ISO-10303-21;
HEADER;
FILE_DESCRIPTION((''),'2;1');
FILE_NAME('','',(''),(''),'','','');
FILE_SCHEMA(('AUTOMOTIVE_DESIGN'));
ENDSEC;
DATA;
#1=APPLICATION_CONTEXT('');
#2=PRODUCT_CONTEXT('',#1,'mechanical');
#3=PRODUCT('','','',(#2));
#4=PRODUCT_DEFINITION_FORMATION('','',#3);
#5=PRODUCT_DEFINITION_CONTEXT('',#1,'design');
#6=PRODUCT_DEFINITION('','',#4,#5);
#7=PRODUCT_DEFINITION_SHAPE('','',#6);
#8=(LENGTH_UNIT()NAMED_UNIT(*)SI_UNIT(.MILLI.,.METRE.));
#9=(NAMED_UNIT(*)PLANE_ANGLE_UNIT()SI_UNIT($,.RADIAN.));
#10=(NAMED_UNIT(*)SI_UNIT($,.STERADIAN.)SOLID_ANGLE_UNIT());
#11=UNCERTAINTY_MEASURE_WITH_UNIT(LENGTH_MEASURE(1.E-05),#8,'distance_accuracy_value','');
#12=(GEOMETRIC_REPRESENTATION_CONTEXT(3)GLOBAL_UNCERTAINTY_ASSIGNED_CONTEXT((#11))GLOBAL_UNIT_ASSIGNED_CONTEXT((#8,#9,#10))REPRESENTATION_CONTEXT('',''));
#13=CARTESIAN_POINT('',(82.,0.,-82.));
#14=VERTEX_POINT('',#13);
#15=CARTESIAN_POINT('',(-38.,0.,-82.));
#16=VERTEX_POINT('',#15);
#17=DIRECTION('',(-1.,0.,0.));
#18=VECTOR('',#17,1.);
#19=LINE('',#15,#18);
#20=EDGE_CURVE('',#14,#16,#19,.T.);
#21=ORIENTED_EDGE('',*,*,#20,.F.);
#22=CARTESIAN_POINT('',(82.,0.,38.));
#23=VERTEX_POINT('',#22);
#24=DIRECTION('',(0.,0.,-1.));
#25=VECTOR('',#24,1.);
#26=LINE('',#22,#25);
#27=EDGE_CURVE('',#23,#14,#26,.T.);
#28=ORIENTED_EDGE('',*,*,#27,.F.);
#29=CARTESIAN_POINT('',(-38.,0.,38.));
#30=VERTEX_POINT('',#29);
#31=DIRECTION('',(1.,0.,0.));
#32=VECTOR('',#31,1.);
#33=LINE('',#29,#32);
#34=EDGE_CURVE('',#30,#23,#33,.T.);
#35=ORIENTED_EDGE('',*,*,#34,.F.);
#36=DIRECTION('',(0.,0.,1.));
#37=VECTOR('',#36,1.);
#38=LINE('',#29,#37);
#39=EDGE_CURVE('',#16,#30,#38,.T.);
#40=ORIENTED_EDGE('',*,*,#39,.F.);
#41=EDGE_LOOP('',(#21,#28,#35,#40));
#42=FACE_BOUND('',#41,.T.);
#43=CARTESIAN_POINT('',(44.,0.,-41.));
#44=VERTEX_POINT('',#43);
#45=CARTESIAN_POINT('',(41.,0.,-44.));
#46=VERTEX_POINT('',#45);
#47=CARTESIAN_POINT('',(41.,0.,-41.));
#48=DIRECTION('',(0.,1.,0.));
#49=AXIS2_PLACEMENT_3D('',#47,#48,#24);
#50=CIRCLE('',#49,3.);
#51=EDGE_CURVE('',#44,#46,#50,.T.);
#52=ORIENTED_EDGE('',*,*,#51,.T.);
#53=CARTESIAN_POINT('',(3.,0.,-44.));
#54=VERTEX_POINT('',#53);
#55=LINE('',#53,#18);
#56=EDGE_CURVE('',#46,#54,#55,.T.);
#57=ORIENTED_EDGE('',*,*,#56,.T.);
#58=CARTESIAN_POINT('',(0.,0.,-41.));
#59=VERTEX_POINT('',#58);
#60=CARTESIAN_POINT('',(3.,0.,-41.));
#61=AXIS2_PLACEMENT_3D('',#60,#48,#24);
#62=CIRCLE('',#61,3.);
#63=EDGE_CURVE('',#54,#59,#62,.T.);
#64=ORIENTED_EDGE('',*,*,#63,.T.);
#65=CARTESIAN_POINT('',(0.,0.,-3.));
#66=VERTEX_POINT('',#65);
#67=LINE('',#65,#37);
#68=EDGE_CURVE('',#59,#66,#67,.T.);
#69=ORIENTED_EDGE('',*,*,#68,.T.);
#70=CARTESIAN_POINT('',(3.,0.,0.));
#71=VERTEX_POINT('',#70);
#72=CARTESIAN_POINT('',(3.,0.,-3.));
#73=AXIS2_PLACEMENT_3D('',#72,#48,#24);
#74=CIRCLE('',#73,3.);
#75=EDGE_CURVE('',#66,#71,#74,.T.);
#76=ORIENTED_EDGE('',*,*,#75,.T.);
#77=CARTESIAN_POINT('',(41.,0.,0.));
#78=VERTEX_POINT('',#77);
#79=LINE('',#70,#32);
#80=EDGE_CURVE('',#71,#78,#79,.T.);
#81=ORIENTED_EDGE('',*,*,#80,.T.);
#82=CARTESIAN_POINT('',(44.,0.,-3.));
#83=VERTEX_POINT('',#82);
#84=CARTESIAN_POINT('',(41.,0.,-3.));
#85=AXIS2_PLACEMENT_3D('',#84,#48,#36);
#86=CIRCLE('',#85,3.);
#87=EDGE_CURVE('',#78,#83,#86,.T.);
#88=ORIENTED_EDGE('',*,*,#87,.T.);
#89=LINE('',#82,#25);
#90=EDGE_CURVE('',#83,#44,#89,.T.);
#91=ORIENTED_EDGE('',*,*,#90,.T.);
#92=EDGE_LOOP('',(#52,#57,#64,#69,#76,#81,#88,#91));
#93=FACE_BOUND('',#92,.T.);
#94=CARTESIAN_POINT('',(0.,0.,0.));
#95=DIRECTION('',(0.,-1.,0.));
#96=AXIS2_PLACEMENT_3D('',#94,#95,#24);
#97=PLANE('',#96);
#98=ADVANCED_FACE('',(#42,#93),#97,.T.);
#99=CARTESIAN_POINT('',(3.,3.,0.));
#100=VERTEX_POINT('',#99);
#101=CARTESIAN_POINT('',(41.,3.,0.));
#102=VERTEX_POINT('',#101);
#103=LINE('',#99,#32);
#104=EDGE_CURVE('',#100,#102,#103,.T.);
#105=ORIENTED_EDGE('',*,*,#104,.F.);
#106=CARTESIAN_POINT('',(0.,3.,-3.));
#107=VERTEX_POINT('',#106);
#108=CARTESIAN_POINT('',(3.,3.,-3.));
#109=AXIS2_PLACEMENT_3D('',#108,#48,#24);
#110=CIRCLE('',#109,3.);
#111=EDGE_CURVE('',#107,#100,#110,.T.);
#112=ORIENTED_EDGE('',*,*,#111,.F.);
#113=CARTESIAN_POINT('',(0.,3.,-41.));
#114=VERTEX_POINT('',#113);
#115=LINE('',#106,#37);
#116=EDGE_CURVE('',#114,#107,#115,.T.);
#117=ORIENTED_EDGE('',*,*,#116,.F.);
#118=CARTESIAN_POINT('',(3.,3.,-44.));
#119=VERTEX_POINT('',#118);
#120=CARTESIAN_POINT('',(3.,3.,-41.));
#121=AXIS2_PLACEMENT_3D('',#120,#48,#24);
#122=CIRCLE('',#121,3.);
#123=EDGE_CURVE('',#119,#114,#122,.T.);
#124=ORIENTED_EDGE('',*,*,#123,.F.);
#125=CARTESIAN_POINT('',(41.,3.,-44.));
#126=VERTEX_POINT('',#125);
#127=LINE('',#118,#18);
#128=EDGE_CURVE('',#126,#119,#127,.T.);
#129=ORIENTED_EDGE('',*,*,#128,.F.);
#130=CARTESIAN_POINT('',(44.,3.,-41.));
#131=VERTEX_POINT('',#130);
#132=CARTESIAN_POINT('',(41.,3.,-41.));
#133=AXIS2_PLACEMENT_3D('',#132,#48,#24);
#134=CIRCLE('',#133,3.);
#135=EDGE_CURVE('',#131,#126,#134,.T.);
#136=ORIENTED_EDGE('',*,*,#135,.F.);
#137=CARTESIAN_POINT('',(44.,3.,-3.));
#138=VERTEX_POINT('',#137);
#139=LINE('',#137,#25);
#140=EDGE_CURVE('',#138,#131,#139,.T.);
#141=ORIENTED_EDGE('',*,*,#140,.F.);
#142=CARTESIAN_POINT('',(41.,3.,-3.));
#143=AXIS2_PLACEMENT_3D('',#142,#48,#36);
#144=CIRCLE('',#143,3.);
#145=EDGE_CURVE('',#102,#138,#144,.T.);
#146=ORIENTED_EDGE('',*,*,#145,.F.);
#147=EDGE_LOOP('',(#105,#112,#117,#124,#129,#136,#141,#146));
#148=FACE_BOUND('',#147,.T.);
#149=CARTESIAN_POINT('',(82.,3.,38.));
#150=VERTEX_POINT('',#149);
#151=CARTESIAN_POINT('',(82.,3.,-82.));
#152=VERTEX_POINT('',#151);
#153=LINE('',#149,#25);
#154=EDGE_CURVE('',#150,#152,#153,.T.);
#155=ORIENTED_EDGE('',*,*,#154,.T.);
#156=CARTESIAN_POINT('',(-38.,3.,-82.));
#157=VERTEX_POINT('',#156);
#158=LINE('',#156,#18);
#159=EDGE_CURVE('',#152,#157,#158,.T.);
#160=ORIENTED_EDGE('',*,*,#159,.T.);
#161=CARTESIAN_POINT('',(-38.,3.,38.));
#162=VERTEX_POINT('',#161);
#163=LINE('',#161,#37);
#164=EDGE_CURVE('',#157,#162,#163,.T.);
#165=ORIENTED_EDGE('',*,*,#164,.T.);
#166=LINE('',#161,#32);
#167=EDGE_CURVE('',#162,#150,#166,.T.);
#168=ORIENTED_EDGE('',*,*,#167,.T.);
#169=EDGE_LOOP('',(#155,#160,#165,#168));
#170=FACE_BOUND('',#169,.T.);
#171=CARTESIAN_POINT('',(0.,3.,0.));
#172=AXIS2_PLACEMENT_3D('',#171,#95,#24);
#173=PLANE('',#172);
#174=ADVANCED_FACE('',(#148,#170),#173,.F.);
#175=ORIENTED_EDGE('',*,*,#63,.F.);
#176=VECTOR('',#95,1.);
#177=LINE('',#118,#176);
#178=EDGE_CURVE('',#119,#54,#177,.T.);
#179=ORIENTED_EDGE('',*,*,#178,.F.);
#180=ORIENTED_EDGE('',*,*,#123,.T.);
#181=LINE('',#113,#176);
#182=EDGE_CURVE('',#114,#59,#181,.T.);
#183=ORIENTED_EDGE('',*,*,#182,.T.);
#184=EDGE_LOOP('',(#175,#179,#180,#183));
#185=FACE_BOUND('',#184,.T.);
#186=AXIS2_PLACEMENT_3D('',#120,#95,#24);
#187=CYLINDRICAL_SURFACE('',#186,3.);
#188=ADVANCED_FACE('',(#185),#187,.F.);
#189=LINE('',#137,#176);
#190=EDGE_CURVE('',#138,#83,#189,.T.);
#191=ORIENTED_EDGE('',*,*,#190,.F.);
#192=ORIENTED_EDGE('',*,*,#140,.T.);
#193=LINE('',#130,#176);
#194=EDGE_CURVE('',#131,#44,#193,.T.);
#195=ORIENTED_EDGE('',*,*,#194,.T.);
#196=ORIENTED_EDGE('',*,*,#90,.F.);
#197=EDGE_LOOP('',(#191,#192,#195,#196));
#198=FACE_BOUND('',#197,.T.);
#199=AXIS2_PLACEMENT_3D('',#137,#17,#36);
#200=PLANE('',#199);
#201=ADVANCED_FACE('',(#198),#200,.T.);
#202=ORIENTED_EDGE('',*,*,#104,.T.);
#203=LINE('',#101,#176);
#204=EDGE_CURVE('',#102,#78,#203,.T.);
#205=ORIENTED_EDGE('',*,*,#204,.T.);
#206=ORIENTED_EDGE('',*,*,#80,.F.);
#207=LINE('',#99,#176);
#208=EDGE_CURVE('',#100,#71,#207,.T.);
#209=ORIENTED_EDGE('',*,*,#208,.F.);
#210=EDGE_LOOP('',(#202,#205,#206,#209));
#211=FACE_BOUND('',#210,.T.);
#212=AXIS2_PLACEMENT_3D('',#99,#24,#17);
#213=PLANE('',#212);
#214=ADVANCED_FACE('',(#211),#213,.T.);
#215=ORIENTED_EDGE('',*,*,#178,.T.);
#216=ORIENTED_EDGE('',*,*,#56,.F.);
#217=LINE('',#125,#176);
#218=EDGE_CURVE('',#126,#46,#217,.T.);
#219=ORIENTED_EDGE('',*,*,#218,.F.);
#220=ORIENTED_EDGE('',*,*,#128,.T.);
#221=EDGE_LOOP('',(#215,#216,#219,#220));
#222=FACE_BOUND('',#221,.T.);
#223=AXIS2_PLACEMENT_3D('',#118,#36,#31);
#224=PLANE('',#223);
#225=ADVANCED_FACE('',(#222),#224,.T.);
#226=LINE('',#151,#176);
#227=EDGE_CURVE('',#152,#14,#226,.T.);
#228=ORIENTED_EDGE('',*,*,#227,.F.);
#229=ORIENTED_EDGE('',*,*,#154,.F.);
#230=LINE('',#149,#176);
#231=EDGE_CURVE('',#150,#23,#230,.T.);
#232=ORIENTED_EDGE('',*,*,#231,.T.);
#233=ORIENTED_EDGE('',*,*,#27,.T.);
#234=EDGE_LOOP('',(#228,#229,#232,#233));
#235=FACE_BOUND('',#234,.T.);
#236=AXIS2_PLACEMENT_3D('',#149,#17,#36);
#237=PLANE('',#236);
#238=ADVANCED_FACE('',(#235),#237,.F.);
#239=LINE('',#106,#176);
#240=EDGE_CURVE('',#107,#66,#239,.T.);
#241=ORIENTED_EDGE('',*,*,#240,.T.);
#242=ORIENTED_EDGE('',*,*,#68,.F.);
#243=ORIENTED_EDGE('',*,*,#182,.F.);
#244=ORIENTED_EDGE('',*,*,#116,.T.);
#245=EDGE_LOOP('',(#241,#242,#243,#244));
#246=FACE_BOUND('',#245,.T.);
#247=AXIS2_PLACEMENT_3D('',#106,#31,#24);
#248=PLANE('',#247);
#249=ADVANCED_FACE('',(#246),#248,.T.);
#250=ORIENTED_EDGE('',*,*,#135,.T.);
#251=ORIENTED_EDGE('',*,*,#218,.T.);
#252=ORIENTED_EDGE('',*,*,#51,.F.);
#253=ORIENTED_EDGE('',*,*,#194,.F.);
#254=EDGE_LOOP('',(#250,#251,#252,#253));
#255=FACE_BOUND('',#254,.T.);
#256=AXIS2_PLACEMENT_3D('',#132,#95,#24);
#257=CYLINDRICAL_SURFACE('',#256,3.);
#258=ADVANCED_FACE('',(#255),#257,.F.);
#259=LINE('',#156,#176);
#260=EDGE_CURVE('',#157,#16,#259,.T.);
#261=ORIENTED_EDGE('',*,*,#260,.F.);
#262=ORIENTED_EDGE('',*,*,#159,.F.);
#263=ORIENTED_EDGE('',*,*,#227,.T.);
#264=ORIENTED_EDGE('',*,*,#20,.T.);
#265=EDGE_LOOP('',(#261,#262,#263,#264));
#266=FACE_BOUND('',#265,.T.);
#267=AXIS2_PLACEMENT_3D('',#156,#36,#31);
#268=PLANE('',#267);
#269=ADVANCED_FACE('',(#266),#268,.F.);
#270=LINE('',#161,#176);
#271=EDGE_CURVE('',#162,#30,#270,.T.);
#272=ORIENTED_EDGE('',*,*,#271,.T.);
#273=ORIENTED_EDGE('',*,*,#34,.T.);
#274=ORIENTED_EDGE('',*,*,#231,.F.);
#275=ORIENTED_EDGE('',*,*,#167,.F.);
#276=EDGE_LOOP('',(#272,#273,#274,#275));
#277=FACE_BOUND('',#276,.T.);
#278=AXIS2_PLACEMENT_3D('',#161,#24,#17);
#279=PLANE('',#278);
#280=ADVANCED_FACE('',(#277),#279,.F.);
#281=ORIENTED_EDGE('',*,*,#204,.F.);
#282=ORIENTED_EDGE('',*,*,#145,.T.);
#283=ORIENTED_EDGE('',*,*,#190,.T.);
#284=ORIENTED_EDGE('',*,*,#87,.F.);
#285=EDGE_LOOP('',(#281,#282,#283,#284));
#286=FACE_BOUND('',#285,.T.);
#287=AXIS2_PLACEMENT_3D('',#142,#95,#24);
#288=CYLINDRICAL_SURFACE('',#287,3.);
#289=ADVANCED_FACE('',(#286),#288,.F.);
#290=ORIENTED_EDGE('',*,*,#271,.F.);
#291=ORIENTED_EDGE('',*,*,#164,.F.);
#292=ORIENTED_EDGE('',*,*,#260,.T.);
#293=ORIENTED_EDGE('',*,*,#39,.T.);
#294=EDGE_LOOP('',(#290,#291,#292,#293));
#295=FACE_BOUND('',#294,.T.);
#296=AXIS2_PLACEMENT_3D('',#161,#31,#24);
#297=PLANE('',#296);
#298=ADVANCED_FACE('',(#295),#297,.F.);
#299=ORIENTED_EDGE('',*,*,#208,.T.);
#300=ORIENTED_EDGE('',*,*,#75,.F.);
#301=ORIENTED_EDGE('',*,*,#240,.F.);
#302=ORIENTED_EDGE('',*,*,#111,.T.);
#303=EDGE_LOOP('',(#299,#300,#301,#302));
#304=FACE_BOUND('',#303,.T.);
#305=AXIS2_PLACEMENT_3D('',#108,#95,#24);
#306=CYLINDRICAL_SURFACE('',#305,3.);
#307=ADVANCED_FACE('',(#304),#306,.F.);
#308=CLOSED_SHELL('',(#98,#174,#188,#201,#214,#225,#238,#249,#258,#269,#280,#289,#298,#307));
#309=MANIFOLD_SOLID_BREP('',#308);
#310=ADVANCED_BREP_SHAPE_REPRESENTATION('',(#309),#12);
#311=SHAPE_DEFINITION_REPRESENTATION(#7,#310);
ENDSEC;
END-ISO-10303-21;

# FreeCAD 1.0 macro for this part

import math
import FreeCAD as App
import Part
import Sketcher

doc = App.newDocument("Part")
params = doc.addObject("Spreadsheet::Sheet", "Params")
for row, (alias, value) in enumerate([
    ("sketch1_radius", "3 mm"),
    ("sketch1_width", "120 mm"),
    ("sketch1_width2", "38 mm"),
    ("pad1_length", "3 mm"),
], start=1):
    params.set(f"A{row}", alias)
    params.set(f"B{row}", "=" + value)
    params.setAlias(f"B{row}", alias)

body = doc.addObject("PartDesign::Body", "Body")

sketch1 = body.newObject("Sketcher::SketchObject", "Sketch")
sketch1.AttachmentSupport = (doc.getObject("XZ_Plane"), [""])
sketch1.MapMode = "FlatFace"
sketch1.addGeometry(Part.LineSegment(App.Vector(-38, -82, 0), App.Vector(-38, 38, 0)), False)
sketch1.addGeometry(Part.LineSegment(App.Vector(-38, 38, 0), App.Vector(82, 38, 0)), False)
sketch1.addGeometry(Part.LineSegment(App.Vector(82, 38, 0), App.Vector(82, -82, 0)), False)
sketch1.addGeometry(Part.LineSegment(App.Vector(82, -82, 0), App.Vector(-38, -82, 0)), False)
sketch1.addGeometry(Part.LineSegment(App.Vector(41, 0, 0), App.Vector(3, 0, 0)), False)
sketch1.addGeometry(Part.ArcOfCircle(Part.Circle(App.Vector(3, -3, 0), App.Vector(0, 0, 1), 3), math.radians(90), math.radians(180)), False)
sketch1.addGeometry(Part.LineSegment(App.Vector(0, -3, 0), App.Vector(0, -41, 0)), False)
sketch1.addGeometry(Part.ArcOfCircle(Part.Circle(App.Vector(3, -41, 0), App.Vector(0, 0, 1), 3), math.radians(180), math.radians(270)), False)
sketch1.addGeometry(Part.LineSegment(App.Vector(3, -44, 0), App.Vector(41, -44, 0)), False)
sketch1.addGeometry(Part.ArcOfCircle(Part.Circle(App.Vector(41, -41, 0), App.Vector(0, 0, 1), 3), math.radians(-90), math.radians(0)), False)
sketch1.addGeometry(Part.LineSegment(App.Vector(44, -41, 0), App.Vector(44, -3, 0)), False)
sketch1.addGeometry(Part.ArcOfCircle(Part.Circle(App.Vector(41, -3, 0), App.Vector(0, 0, 1), 3), math.radians(0), math.radians(90)), False)
sketch1.addConstraint(Sketcher.Constraint("Coincident", 0, 2, 1, 1))
sketch1.addConstraint(Sketcher.Constraint("Coincident", 1, 2, 2, 1))
sketch1.addConstraint(Sketcher.Constraint("Coincident", 2, 2, 3, 1))
sketch1.addConstraint(Sketcher.Constraint("Coincident", 3, 2, 0, 1))
sketch1.addConstraint(Sketcher.Constraint("Tangent", 4, 2, 5, 1))
sketch1.addConstraint(Sketcher.Constraint("Tangent", 5, 2, 6, 1))
sketch1.addConstraint(Sketcher.Constraint("Tangent", 6, 2, 7, 1))
sketch1.addConstraint(Sketcher.Constraint("Tangent", 7, 2, 8, 1))
sketch1.addConstraint(Sketcher.Constraint("Tangent", 8, 2, 9, 1))
sketch1.addConstraint(Sketcher.Constraint("Tangent", 9, 2, 10, 1))
sketch1.addConstraint(Sketcher.Constraint("Tangent", 10, 2, 11, 1))
sketch1.addConstraint(Sketcher.Constraint("Tangent", 11, 2, 4, 1))
sketch1.addConstraint(Sketcher.Constraint("Vertical", 0))
sketch1.addConstraint(Sketcher.Constraint("Horizontal", 1))
sketch1.addConstraint(Sketcher.Constraint("Vertical", 2))
sketch1.addConstraint(Sketcher.Constraint("Horizontal", 3))
sketch1.addConstraint(Sketcher.Constraint("Horizontal", 4))
sketch1.addConstraint(Sketcher.Constraint("Vertical", 6))
sketch1.addConstraint(Sketcher.Constraint("Horizontal", 8))
sketch1.addConstraint(Sketcher.Constraint("Vertical", 10))
sketch1.addConstraint(Sketcher.Constraint("Equal", 5, 7))
sketch1.addConstraint(Sketcher.Constraint("Equal", 7, 9))
sketch1.addConstraint(Sketcher.Constraint("Equal", 9, 11))
sketch1.addConstraint(Sketcher.Constraint("PointOnObject", 4, 2, -1))
sketch1.addConstraint(Sketcher.Constraint("PointOnObject", 5, 2, -2))
sketch1.addConstraint(Sketcher.Constraint("Equal", 3, 0))
sketch1.addConstraint(Sketcher.Constraint("Equal", 8, 6))
sketch1.addConstraint(Sketcher.Constraint("Radius", 5, 3.0))
sketch1.addConstraint(Sketcher.Constraint("DistanceX", 1, 1, 1, 2, 120.0))
sketch1.addConstraint(Sketcher.Constraint("DistanceX", 4, 2, 4, 1, 38.0))
sketch1.addConstraint(Sketcher.Constraint("DistanceX", 0, 2, -1, 1, 38.0))
sketch1.addConstraint(Sketcher.Constraint("DistanceY", -1, 1, 0, 2, 38.0))
sketch1.setExpression("Constraints[27]", "Params.sketch1_radius")
sketch1.setExpression("Constraints[28]", "Params.sketch1_width")
sketch1.setExpression("Constraints[29]", "Params.sketch1_width2")
pad1 = body.newObject("PartDesign::Pad", "Pad")
pad1.Profile = sketch1
pad1.setExpression("Length", "Params.pad1_length")
pad1.Reversed = True

doc.recompute()
